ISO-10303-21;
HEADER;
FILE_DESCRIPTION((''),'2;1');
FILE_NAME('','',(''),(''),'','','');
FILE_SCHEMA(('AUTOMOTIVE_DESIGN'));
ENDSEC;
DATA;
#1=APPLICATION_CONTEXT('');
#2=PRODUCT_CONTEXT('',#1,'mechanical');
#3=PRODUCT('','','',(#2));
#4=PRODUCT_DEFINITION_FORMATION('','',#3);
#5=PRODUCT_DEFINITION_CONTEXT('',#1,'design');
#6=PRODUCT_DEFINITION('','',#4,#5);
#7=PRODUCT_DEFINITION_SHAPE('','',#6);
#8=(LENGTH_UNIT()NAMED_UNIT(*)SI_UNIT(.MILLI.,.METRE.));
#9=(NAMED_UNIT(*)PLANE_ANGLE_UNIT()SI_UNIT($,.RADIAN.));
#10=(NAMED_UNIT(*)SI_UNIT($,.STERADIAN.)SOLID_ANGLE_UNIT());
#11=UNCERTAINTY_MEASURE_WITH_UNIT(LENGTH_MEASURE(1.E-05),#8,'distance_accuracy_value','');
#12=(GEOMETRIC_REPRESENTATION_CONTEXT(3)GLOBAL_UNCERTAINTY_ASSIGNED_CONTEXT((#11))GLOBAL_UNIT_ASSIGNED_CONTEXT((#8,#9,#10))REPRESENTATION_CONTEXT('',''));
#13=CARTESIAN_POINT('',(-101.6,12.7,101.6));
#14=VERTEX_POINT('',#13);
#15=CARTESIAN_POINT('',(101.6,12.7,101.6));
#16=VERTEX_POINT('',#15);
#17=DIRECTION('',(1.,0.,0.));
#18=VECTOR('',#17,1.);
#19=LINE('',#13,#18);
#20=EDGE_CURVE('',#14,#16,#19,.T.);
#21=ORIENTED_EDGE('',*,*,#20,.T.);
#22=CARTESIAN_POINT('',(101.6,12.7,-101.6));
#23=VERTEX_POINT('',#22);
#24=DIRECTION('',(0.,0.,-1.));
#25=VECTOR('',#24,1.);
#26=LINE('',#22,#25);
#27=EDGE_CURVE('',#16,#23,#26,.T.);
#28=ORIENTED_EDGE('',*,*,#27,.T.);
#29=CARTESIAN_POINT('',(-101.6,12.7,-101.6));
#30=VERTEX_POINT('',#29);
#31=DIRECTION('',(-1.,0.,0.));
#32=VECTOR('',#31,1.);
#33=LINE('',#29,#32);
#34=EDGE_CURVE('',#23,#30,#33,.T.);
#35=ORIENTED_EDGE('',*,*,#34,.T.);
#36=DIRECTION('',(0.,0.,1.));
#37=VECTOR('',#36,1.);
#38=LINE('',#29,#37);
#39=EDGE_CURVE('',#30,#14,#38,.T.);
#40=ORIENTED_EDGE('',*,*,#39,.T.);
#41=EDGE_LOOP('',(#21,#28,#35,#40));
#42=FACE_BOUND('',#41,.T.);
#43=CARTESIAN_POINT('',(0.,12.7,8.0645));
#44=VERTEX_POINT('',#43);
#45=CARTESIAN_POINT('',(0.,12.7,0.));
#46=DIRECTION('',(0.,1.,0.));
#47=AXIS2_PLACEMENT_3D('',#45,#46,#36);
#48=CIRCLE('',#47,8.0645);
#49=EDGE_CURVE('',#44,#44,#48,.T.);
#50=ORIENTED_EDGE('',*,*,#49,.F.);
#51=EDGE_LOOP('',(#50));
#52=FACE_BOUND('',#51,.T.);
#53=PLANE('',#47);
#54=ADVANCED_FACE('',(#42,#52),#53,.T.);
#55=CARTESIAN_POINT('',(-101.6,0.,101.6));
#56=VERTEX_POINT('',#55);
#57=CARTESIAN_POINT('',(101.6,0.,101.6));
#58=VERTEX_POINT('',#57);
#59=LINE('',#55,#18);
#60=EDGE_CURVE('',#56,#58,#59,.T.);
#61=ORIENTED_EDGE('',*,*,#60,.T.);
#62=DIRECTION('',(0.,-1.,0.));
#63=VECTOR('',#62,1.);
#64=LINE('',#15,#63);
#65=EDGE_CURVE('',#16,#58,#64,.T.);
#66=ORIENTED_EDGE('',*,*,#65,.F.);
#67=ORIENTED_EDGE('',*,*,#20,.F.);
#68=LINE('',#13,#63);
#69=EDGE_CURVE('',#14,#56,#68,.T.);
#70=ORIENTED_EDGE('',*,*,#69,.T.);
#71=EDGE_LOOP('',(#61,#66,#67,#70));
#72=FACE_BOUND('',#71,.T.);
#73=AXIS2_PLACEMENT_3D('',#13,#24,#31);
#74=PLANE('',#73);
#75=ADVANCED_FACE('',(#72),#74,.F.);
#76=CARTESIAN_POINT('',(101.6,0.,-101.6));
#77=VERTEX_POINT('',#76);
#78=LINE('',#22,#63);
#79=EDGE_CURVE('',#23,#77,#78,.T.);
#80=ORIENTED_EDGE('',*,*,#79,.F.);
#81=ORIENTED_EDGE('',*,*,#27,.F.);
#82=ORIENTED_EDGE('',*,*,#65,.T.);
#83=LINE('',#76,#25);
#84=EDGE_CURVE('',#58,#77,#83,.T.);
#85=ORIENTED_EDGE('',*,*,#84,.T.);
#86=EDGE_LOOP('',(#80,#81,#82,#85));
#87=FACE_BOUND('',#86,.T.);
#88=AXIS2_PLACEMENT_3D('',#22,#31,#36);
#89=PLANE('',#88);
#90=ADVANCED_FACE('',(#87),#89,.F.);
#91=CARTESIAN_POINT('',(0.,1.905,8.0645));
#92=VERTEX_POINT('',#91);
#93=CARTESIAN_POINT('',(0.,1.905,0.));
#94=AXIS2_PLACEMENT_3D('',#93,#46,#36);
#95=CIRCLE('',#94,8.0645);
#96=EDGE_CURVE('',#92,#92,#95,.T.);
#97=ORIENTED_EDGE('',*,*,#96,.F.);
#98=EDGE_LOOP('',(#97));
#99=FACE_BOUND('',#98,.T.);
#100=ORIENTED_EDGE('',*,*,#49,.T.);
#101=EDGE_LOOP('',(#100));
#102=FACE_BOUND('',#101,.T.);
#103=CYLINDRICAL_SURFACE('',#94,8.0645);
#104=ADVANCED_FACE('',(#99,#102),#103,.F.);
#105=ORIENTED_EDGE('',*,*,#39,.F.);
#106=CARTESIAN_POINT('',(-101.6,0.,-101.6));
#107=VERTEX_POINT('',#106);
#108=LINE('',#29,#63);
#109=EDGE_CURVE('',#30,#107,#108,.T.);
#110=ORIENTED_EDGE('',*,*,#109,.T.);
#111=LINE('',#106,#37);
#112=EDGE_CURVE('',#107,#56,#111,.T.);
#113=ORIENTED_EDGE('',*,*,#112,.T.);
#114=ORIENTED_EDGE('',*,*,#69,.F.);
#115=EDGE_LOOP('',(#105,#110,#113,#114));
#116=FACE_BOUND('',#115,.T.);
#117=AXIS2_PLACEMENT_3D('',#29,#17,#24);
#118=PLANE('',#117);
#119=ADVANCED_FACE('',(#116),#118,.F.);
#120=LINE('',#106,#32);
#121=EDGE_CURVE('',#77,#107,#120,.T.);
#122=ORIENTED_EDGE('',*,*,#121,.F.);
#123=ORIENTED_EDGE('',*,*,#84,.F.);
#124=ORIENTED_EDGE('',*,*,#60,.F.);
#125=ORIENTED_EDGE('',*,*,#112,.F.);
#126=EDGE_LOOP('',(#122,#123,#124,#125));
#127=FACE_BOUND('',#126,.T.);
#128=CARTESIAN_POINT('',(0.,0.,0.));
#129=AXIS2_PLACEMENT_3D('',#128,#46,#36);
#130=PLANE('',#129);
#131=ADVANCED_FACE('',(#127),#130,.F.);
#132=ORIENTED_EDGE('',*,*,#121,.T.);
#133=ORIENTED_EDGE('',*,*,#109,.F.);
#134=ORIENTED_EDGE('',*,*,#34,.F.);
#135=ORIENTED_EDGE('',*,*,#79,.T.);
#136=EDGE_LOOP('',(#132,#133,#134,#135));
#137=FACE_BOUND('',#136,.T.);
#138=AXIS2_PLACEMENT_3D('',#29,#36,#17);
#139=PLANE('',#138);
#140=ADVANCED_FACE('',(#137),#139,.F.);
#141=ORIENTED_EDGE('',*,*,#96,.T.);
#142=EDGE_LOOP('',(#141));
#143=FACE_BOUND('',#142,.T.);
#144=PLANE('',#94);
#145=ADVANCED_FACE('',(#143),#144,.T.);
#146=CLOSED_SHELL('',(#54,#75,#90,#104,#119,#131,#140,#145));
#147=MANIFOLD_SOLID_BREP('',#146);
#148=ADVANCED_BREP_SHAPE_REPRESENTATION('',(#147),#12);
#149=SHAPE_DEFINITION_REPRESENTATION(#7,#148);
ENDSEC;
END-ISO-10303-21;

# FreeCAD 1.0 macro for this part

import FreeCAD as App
import Part
import Sketcher
Q = App.Units.Quantity


def add_polygon(sketch, points):
    """Adds a closed chain of lines whose ends are joined by coincident constraints."""
    first, n = sketch.GeometryCount, len(points)
    for a, b in zip(points, points[1:] + points[:1]):
        sketch.addGeometry(Part.LineSegment(App.Vector(*a, 0), App.Vector(*b, 0)), False)
    for i in range(n):
        sketch.addConstraint(Sketcher.Constraint("Coincident", first + i, 2, first + (i + 1) % n, 1))

doc = App.newDocument("Part")
body = doc.addObject("PartDesign::Body", "Body")

# Sketch on XZ plane
sketch1 = body.newObject("Sketcher::SketchObject", "Sketch")
sketch1.AttachmentSupport = (doc.getObject("XZ_Plane"), [""])
sketch1.MapMode = "FlatFace"
add_polygon(sketch1, [(-102, -102), (-102, 102), (102, 102), (102, -102)])  # lines 0-3
sketch1.addConstraint(Sketcher.Constraint("Vertical", 0))
sketch1.addConstraint(Sketcher.Constraint("Horizontal", 1))
sketch1.addConstraint(Sketcher.Constraint("Vertical", 2))
sketch1.addConstraint(Sketcher.Constraint("Horizontal", 3))
sketch1.addConstraint(Sketcher.Constraint("Symmetric", 0, 2, 2, 2, -1, 1))
sketch1.addConstraint(Sketcher.Constraint("Equal", 3, 0))
sketch1.addConstraint(Sketcher.Constraint("DistanceX", 1, 1, 1, 2, Q("8 in")))
pad1 = body.newObject("PartDesign::Pad", "Pad")
pad1.Profile = sketch1
pad1.Length = Q("0.5 in")
pad1.Reversed = True

# Sketch on XZ plane
sketch2 = body.newObject("Sketcher::SketchObject", "Sketch001")
sketch2.AttachmentSupport = (doc.getObject("XZ_Plane"), [""])
sketch2.MapMode = "FlatFace"
sketch2.AttachmentOffset = App.Placement(App.Vector(0, 0, -0.5 * 25.4), App.Rotation())
sketch2.addGeometry(Part.Circle(App.Vector(0, 0, 0), App.Vector(0, 0, 1), 8), False)
sketch2.addConstraint(Sketcher.Constraint("Coincident", 0, 3, -1, 1))
sketch2.addConstraint(Sketcher.Constraint("Diameter", 0, Q("0.635 in")))
pocket1 = body.newObject("PartDesign::Pocket", "Pocket")
pocket1.Profile = sketch2
pocket1.Length = Q("0.425 in")
pocket1.Reversed = True

doc.recompute()
